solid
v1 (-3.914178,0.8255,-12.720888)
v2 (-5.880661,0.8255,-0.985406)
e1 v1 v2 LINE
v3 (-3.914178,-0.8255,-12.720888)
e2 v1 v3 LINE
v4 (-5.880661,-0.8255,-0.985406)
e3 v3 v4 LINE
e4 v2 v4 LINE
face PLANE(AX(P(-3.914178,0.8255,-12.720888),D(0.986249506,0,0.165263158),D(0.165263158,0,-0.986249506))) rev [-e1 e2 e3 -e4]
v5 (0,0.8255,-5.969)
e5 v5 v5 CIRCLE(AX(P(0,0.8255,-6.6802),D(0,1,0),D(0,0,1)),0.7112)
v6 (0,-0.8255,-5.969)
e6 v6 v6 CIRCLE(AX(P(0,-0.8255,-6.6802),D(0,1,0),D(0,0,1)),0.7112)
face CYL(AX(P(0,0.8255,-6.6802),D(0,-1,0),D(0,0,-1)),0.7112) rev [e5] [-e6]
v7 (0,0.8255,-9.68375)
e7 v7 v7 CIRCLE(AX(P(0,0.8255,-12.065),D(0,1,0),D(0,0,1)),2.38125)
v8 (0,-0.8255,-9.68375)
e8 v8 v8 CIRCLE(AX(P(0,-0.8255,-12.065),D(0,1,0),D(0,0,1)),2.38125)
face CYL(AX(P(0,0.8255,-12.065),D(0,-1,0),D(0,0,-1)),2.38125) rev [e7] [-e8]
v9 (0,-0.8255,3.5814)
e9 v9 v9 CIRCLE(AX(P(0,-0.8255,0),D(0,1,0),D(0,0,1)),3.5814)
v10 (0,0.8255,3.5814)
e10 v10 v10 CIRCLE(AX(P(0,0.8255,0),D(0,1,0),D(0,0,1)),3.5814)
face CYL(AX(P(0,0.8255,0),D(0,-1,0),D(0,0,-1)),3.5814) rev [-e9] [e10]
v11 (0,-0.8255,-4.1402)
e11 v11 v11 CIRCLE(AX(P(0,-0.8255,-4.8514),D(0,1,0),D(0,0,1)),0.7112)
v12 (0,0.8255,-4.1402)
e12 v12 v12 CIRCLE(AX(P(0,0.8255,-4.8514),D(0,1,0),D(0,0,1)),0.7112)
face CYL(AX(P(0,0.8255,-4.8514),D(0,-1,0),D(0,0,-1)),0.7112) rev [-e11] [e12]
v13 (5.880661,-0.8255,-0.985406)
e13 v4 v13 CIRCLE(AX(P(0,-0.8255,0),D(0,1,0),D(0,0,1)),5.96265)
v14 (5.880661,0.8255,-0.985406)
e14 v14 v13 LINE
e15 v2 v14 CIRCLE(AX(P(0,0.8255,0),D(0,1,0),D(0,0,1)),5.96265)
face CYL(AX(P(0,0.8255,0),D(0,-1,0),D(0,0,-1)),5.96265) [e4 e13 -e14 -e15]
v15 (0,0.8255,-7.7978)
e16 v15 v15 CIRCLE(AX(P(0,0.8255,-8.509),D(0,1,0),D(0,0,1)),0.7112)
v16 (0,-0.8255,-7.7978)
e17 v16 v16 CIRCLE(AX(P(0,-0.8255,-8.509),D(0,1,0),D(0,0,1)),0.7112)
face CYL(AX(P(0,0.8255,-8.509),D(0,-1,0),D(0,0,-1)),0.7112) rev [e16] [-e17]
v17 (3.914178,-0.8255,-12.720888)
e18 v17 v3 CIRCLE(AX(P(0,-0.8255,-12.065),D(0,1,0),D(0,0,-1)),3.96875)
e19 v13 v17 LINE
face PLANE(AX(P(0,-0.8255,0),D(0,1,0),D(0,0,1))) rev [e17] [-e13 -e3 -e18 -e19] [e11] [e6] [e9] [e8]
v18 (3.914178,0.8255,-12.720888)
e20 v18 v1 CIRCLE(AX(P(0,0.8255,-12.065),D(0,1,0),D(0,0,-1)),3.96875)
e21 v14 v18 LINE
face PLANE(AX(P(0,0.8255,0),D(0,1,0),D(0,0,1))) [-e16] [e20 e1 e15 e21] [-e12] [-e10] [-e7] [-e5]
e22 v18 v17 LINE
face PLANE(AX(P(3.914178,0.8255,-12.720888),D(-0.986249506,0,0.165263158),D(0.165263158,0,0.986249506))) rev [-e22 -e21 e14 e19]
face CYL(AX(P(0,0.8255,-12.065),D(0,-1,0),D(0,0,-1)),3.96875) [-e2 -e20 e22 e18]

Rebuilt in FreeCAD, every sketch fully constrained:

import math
import FreeCAD as App
import Part
import Sketcher

V = App.Vector
Q = App.Units.Quantity

doc = App.newDocument("Part")
body = doc.addObject("PartDesign::Body", "Body")

# Sketch on XZ plane
sketch1 = doc.addObject("Sketcher::SketchObject", "Sketch")
body.addObject(sketch1)
sketch1.AttachmentSupport = (doc.XZ_Plane, [""])
sketch1.MapMode = "FlatFace"
sketch1.addGeometry(Part.LineSegment(V(5.9, -1, 0), V(3.9, -12.7, 0)), False)
sketch1.addGeometry(Part.ArcOfCircle(Part.Circle(V(0, -12.1, 0), V(0, 0, 1), 4), math.radians(-170), math.radians(-10)), False)
sketch1.addGeometry(Part.LineSegment(V(-3.9, -12.7, 0), V(-5.9, -1, 0)), False)
sketch1.addGeometry(Part.ArcOfCircle(Part.Circle(V(0, 0, 0), V(0, 0, 1), 6), math.radians(-10), math.radians(190)), False)
sketch1.addGeometry(Part.Circle(V(0, -4.9, 0), V(0, 0, 1), 0.7), False)
sketch1.addGeometry(Part.Circle(V(0, 0, 0), V(0, 0, 1), 3.6), False)
sketch1.addGeometry(Part.Circle(V(0, -6.7, 0), V(0, 0, 1), 0.7), False)
sketch1.addGeometry(Part.Circle(V(0, -8.5, 0), V(0, 0, 1), 0.7), False)
sketch1.addGeometry(Part.Circle(V(0, -12.1, 0), V(0, 0, 1), 2.4), False)
sketch1.addConstraint(Sketcher.Constraint("Tangent", 0, 2, 1, 2))
sketch1.addConstraint(Sketcher.Constraint("Tangent", 1, 1, 2, 1))
sketch1.addConstraint(Sketcher.Constraint("Tangent", 2, 2, 3, 2))
sketch1.addConstraint(Sketcher.Constraint("Tangent", 3, 1, 0, 1))
sketch1.addConstraint(Sketcher.Constraint("Coincident", 3, 3, -1, 1))
sketch1.addConstraint(Sketcher.Constraint("Coincident", 5, 3, -1, 1))
sketch1.addConstraint(Sketcher.Constraint("Coincident", 8, 3, 1, 3))
sketch1.addConstraint(Sketcher.Constraint("Equal", 4, 6))
sketch1.addConstraint(Sketcher.Constraint("Equal", 6, 7))
sketch1.addConstraint(Sketcher.Constraint("PointOnObject", 1, 3, -2))
sketch1.addConstraint(Sketcher.Constraint("PointOnObject", 4, 3, -2))
sketch1.addConstraint(Sketcher.Constraint("PointOnObject", 6, 3, -2))
sketch1.addConstraint(Sketcher.Constraint("PointOnObject", 7, 3, -2))
sketch1.addConstraint(Sketcher.Constraint("Diameter", 4, Q("0.056 in")))
sketch1.addConstraint(Sketcher.Constraint("Diameter", 5, Q("0.282 in")))
sketch1.addConstraint(Sketcher.Constraint("Diameter", 8, Q("0.1875 in")))
sketch1.addConstraint(Sketcher.Constraint("Radius", 1, Q("0.15625 in")))
sketch1.addConstraint(Sketcher.Constraint("DistanceY", 1, 3, 7, 3, Q("0.14 in")))
sketch1.addConstraint(Sketcher.Constraint("DistanceY", 1, 3, -1, 1, Q("0.475 in")))
sketch1.addConstraint(Sketcher.Constraint("DistanceY", 4, 3, -1, 1, Q("0.191 in")))
sketch1.addConstraint(Sketcher.Constraint("DistanceY", 6, 3, -1, 1, Q("0.263 in")))
sketch1.addConstraint(Sketcher.Constraint("Radius", 3, 5.96265))
pad1 = doc.addObject("PartDesign::Pad", "Pad")
body.addObject(pad1)
pad1.Profile = sketch1
pad1.Length = Q("0.065 in")
pad1.Midplane = True

doc.recompute()
